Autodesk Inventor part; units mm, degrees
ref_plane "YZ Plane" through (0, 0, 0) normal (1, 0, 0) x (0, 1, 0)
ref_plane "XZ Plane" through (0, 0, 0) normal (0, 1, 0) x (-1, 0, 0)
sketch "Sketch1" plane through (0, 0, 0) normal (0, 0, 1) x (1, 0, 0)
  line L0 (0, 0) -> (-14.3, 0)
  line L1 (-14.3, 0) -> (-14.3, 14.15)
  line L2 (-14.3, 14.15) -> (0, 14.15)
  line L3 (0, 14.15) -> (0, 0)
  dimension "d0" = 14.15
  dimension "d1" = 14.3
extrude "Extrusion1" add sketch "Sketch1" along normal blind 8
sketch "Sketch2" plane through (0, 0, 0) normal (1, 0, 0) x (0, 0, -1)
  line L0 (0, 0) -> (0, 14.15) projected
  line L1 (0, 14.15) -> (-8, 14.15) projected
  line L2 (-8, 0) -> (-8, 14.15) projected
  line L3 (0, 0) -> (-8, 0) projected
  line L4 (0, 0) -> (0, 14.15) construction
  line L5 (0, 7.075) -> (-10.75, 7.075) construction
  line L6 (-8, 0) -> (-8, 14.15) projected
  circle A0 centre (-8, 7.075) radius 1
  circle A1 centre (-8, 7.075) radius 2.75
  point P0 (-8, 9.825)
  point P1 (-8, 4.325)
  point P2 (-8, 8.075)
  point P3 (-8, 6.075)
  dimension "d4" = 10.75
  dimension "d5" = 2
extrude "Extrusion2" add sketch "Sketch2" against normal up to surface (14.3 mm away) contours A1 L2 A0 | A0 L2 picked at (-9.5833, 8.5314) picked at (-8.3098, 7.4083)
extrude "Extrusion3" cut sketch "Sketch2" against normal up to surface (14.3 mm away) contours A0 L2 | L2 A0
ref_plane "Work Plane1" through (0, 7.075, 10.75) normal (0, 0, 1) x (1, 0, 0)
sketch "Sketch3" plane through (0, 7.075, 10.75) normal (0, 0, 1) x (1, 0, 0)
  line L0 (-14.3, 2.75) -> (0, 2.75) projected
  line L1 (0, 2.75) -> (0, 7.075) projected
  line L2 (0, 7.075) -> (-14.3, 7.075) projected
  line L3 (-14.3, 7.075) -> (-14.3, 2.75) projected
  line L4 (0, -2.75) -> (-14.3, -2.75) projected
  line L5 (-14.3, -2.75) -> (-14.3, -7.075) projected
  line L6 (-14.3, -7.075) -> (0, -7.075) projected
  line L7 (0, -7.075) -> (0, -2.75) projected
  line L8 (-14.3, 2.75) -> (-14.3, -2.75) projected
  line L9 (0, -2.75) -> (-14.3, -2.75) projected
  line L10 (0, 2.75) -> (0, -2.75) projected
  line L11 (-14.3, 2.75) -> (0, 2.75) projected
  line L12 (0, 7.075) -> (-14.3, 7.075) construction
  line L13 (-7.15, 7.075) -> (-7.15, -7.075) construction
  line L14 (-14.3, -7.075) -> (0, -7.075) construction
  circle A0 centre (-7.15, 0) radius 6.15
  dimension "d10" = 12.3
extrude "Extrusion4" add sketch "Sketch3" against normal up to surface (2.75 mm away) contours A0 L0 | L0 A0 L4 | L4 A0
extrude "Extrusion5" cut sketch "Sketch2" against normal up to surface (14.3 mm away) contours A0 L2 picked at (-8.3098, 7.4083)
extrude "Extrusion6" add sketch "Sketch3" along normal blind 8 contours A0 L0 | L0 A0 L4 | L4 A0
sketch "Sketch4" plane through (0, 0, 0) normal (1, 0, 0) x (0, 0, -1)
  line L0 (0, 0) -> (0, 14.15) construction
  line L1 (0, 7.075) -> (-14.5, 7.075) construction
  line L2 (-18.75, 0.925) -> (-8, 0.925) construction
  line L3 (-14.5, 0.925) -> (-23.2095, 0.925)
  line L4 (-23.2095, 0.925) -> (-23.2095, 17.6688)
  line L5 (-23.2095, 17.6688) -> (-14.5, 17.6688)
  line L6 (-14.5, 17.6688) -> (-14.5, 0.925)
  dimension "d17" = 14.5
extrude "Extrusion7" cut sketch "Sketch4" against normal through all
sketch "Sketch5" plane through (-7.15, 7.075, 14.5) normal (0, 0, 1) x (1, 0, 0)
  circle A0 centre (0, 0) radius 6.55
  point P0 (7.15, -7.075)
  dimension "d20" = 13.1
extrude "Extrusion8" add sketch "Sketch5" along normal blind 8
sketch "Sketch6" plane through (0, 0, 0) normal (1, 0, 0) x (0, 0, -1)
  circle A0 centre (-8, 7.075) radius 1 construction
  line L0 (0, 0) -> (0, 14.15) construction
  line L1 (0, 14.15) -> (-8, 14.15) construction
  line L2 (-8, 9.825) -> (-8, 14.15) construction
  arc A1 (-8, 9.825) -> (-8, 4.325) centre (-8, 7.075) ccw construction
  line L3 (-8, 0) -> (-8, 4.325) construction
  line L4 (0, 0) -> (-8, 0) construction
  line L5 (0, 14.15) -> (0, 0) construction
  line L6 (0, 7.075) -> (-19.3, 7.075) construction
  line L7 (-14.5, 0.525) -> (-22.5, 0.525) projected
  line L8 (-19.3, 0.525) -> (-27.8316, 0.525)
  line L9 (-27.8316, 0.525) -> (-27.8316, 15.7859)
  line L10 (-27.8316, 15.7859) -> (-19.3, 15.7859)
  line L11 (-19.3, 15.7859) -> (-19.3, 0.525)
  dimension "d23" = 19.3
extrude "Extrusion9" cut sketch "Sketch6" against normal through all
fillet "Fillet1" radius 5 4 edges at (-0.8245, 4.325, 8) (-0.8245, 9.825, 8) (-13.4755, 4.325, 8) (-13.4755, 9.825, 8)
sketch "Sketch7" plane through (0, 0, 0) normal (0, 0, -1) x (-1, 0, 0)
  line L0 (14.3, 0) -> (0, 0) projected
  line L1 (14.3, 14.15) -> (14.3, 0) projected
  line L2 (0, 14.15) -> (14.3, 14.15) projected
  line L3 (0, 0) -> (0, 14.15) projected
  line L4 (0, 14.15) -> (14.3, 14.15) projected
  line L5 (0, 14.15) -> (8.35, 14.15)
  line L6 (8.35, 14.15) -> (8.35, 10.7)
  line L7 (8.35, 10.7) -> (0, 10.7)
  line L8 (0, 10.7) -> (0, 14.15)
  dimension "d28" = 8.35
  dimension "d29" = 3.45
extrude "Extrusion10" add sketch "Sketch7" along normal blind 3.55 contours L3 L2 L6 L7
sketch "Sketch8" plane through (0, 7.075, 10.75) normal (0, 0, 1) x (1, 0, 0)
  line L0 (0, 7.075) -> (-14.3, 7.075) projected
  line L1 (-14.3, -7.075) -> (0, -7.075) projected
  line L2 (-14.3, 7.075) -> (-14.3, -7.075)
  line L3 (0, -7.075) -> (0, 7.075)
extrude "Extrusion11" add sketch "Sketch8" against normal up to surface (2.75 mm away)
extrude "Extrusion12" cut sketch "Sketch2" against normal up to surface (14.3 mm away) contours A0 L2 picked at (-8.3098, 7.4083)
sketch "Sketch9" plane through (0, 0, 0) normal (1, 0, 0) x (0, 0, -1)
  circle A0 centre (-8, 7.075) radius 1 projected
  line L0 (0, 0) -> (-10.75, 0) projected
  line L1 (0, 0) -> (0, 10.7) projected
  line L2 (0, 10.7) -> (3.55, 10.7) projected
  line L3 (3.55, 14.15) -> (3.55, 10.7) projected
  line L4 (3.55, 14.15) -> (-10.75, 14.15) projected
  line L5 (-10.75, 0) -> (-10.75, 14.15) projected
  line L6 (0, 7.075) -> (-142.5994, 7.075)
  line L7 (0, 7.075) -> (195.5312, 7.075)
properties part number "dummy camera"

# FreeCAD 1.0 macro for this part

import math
import FreeCAD as App
import Part
import Sketcher
from FreeCAD import Vector


def edges_at(feature, points):
    """Names of the edges that pass closest to the given points."""
    edges = feature.Shape.Edges
    near = lambda p: min(range(len(edges)), key=lambda i: edges[i].distToShape(Part.Vertex(*p))[0])
    return sorted({f"Edge{near(p) + 1}" for p in points})

doc = App.newDocument("Part")
body = doc.addObject("PartDesign::Body", "Body")

# Sketch on XY plane
sketch1 = doc.addObject("Sketcher::SketchObject", "Sketch")
body.addObject(sketch1)
sketch1.AttachmentSupport = (doc.XY_Plane, [""])
sketch1.MapMode = "FlatFace"
sketch1.addGeometry(Part.LineSegment(Vector(-14, 0, 0), Vector(0, 0, 0)), False)
sketch1.addGeometry(Part.LineSegment(Vector(0, 0, 0), Vector(0, 14, 0)), False)
sketch1.addGeometry(Part.LineSegment(Vector(0, 14, 0), Vector(-14, 14, 0)), False)
sketch1.addGeometry(Part.LineSegment(Vector(-14, 14, 0), Vector(-14, 0, 0)), False)
sketch1.addConstraint(Sketcher.Constraint("Coincident", 0, 2, 1, 1))
sketch1.addConstraint(Sketcher.Constraint("Coincident", 1, 2, 2, 1))
sketch1.addConstraint(Sketcher.Constraint("Coincident", 2, 2, 3, 1))
sketch1.addConstraint(Sketcher.Constraint("Coincident", 3, 2, 0, 1))
sketch1.addConstraint(Sketcher.Constraint("Horizontal", 0))
sketch1.addConstraint(Sketcher.Constraint("Vertical", 1))
sketch1.addConstraint(Sketcher.Constraint("Horizontal", 2))
sketch1.addConstraint(Sketcher.Constraint("Vertical", 3))
sketch1.addConstraint(Sketcher.Constraint("Coincident", 0, 2, -1, 1))
sketch1.addConstraint(Sketcher.Constraint("DistanceX", 0, 1, 0, 2, 14.3))
sketch1.addConstraint(Sketcher.Constraint("DistanceY", 1, 1, 1, 2, 14.15))
pad1 = doc.addObject("PartDesign::Pad", "Pad")
body.addObject(pad1)
pad1.Profile = sketch1
pad1.Length = 8

# Sketch on YZ plane
sketch2 = doc.addObject("Sketcher::SketchObject", "Sketch001")
body.addObject(sketch2)
sketch2.AttachmentSupport = (doc.YZ_Plane, [""])
sketch2.MapMode = "FlatFace"
sketch2.addGeometry(Part.ArcOfCircle(Part.Circle(Vector(7.1, 8, 0), Vector(0, 0, 1), 2.8), math.radians(0), math.radians(180)), False)
sketch2.addGeometry(Part.LineSegment(Vector(4.3, 8, 0), Vector(9.8, 8, 0)), False)
sketch2.addConstraint(Sketcher.Constraint("Coincident", 0, 1, 1, 2))
sketch2.addConstraint(Sketcher.Constraint("Coincident", 1, 1, 0, 2))
sketch2.addConstraint(Sketcher.Constraint("Horizontal", 1))
sketch2.addConstraint(Sketcher.Constraint("Radius", 0, 2.75))
sketch2.addConstraint(Sketcher.Constraint("DistanceY", -1, 1, 0, 3, 8.0))
sketch2.addConstraint(Sketcher.Constraint("DistanceY", -1, 1, 0, 1, 8.0))
sketch2.addConstraint(Sketcher.Constraint("DistanceX", -1, 1, 0, 3, 7.075))
pad2 = doc.addObject("PartDesign::Pad", "Pad001")
body.addObject(pad2)
pad2.Profile = sketch2
pad2.Length = 14.3
pad2.Reversed = True

# Sketch on YZ plane
sketch3 = doc.addObject("Sketcher::SketchObject", "Sketch002")
body.addObject(sketch3)
sketch3.AttachmentSupport = (doc.YZ_Plane, [""])
sketch3.MapMode = "FlatFace"
sketch3.addGeometry(Part.Circle(Vector(7.1, 8, 0), Vector(0, 0, 1), 1), False)
sketch3.addConstraint(Sketcher.Constraint("Diameter", 0, 2.0))
sketch3.addConstraint(Sketcher.Constraint("DistanceY", -1, 1, 0, 3, 8.0))
sketch3.addConstraint(Sketcher.Constraint("DistanceX", -1, 1, 0, 3, 7.075))
pocket1 = doc.addObject("PartDesign::Pocket", "Pocket")
body.addObject(pocket1)
pocket1.Profile = sketch3
pocket1.Length = 14.3

# Sketch on XY plane
sketch4 = doc.addObject("Sketcher::SketchObject", "Sketch003")
body.addObject(sketch4)
sketch4.AttachmentSupport = (doc.XY_Plane, [""])
sketch4.MapMode = "FlatFace"
sketch4.AttachmentOffset = App.Placement(Vector(0, 0, 10.75), App.Rotation())
sketch4.addGeometry(Part.Circle(Vector(-7, 7, 0), Vector(0, 0, 1), 6), False)
sketch4.addConstraint(Sketcher.Constraint("Diameter", 0, 12.3))
sketch4.addConstraint(Sketcher.Constraint("DistanceX", 0, 3, -1, 1, 7.15))
sketch4.addConstraint(Sketcher.Constraint("DistanceY", -1, 1, 0, 3, 7.075))
pad3 = doc.addObject("PartDesign::Pad", "Pad002")
body.addObject(pad3)
pad3.Profile = sketch4
pad3.Length = 2.75
pad3.Reversed = True

# Sketch on YZ plane
sketch5 = doc.addObject("Sketcher::SketchObject", "Sketch004")
body.addObject(sketch5)
sketch5.AttachmentSupport = (doc.YZ_Plane, [""])
sketch5.MapMode = "FlatFace"
sketch5.addGeometry(Part.ArcOfCircle(Part.Circle(Vector(7.1, 8, 0), Vector(0, 0, 1), 1), math.radians(0), math.radians(180)), False)
sketch5.addGeometry(Part.LineSegment(Vector(6.1, 8, 0), Vector(8.1, 8, 0)), False)
sketch5.addConstraint(Sketcher.Constraint("Coincident", 0, 1, 1, 2))
sketch5.addConstraint(Sketcher.Constraint("Coincident", 1, 1, 0, 2))
sketch5.addConstraint(Sketcher.Constraint("Horizontal", 1))
sketch5.addConstraint(Sketcher.Constraint("Radius", 0, 1.0))
sketch5.addConstraint(Sketcher.Constraint("DistanceY", -1, 1, 0, 3, 8.0))
sketch5.addConstraint(Sketcher.Constraint("DistanceY", -1, 1, 0, 1, 8.0))
sketch5.addConstraint(Sketcher.Constraint("DistanceX", -1, 1, 0, 3, 7.075))
pocket2 = doc.addObject("PartDesign::Pocket", "Pocket001")
body.addObject(pocket2)
pocket2.Profile = sketch5
pocket2.Length = 14.3

# Sketch on XY plane
sketch6 = doc.addObject("Sketcher::SketchObject", "Sketch005")
body.addObject(sketch6)
sketch6.AttachmentSupport = (doc.XY_Plane, [""])
sketch6.MapMode = "FlatFace"
sketch6.AttachmentOffset = App.Placement(Vector(0, 0, 10.75), App.Rotation())
sketch6.addGeometry(Part.Circle(Vector(-7, 7, 0), Vector(0, 0, 1), 6), False)
sketch6.addConstraint(Sketcher.Constraint("Diameter", 0, 12.3))
sketch6.addConstraint(Sketcher.Constraint("DistanceX", 0, 3, -1, 1, 7.15))
sketch6.addConstraint(Sketcher.Constraint("DistanceY", -1, 1, 0, 3, 7.075))
pad4 = doc.addObject("PartDesign::Pad", "Pad003")
body.addObject(pad4)
pad4.Profile = sketch6
pad4.Length = 8

# Sketch on YZ plane
sketch7 = doc.addObject("Sketcher::SketchObject", "Sketch006")
body.addObject(sketch7)
sketch7.AttachmentSupport = (doc.YZ_Plane, [""])
sketch7.MapMode = "FlatFace"
sketch7.addGeometry(Part.LineSegment(Vector(1, 23, 0), Vector(1, 14, 0)), False)
sketch7.addGeometry(Part.LineSegment(Vector(1, 14, 0), Vector(18, 14, 0)), False)
sketch7.addGeometry(Part.LineSegment(Vector(18, 14, 0), Vector(18, 23, 0)), False)
sketch7.addGeometry(Part.LineSegment(Vector(18, 23, 0), Vector(1, 23, 0)), False)
sketch7.addConstraint(Sketcher.Constraint("Coincident", 0, 2, 1, 1))
sketch7.addConstraint(Sketcher.Constraint("Coincident", 1, 2, 2, 1))
sketch7.addConstraint(Sketcher.Constraint("Coincident", 2, 2, 3, 1))
sketch7.addConstraint(Sketcher.Constraint("Coincident", 3, 2, 0, 1))
sketch7.addConstraint(Sketcher.Constraint("Vertical", 0))
sketch7.addConstraint(Sketcher.Constraint("Horizontal", 1))
sketch7.addConstraint(Sketcher.Constraint("Vertical", 2))
sketch7.addConstraint(Sketcher.Constraint("Horizontal", 3))
sketch7.addConstraint(Sketcher.Constraint("DistanceY", -1, 1, 0, 2, 14.5))
sketch7.addConstraint(Sketcher.Constraint("DistanceX", 1, 1, 1, 2, 16.7438))
sketch7.addConstraint(Sketcher.Constraint("DistanceY", 0, 2, 0, 1, 8.7095))
sketch7.addConstraint(Sketcher.Constraint("DistanceX", -1, 1, 0, 2, 0.925))
pocket3 = doc.addObject("PartDesign::Pocket", "Pocket002")
body.addObject(pocket3)
pocket3.Profile = sketch7
pocket3.Type = "ThroughAll"

# Sketch on XY plane
sketch8 = doc.addObject("Sketcher::SketchObject", "Sketch007")
body.addObject(sketch8)
sketch8.AttachmentSupport = (doc.XY_Plane, [""])
sketch8.MapMode = "FlatFace"
sketch8.AttachmentOffset = App.Placement(Vector(0, 0, 14.5), App.Rotation())
sketch8.addGeometry(Part.Circle(Vector(-7, 7, 0), Vector(0, 0, 1), 7), False)
sketch8.addConstraint(Sketcher.Constraint("Diameter", 0, 13.1))
sketch8.addConstraint(Sketcher.Constraint("DistanceX", 0, 3, -1, 1, 7.15))
sketch8.addConstraint(Sketcher.Constraint("DistanceY", -1, 1, 0, 3, 7.075))
pad5 = doc.addObject("PartDesign::Pad", "Pad004")
body.addObject(pad5)
pad5.Profile = sketch8
pad5.Length = 8

# Sketch on YZ plane
sketch9 = doc.addObject("Sketcher::SketchObject", "Sketch008")
body.addObject(sketch9)
sketch9.AttachmentSupport = (doc.YZ_Plane, [""])
sketch9.MapMode = "FlatFace"
sketch9.addGeometry(Part.LineSegment(Vector(1, 28, 0), Vector(1, 19, 0)), False)
sketch9.addGeometry(Part.LineSegment(Vector(1, 19, 0), Vector(16, 19, 0)), False)
sketch9.addGeometry(Part.LineSegment(Vector(16, 19, 0), Vector(16, 28, 0)), False)
sketch9.addGeometry(Part.LineSegment(Vector(16, 28, 0), Vector(1, 28, 0)), False)
sketch9.addConstraint(Sketcher.Constraint("Coincident", 0, 2, 1, 1))
sketch9.addConstraint(Sketcher.Constraint("Coincident", 1, 2, 2, 1))
sketch9.addConstraint(Sketcher.Constraint("Coincident", 2, 2, 3, 1))
sketch9.addConstraint(Sketcher.Constraint("Coincident", 3, 2, 0, 1))
sketch9.addConstraint(Sketcher.Constraint("Vertical", 0))
sketch9.addConstraint(Sketcher.Constraint("Horizontal", 1))
sketch9.addConstraint(Sketcher.Constraint("Vertical", 2))
sketch9.addConstraint(Sketcher.Constraint("Horizontal", 3))
sketch9.addConstraint(Sketcher.Constraint("DistanceY", -1, 1, 0, 2, 19.3))
sketch9.addConstraint(Sketcher.Constraint("DistanceX", 1, 1, 1, 2, 15.261))
sketch9.addConstraint(Sketcher.Constraint("DistanceY", 0, 2, 0, 1, 8.5316))
sketch9.addConstraint(Sketcher.Constraint("DistanceX", -1, 1, 0, 2, 0.525))
pocket4 = doc.addObject("PartDesign::Pocket", "Pocket003")
body.addObject(pocket4)
pocket4.Profile = sketch9
pocket4.Type = "ThroughAll"
doc.recompute()

fillet = doc.addObject("PartDesign::Fillet", "Fillet")
body.addObject(fillet)
fillet.Base = (pocket4, edges_at(pocket4, [
    (-0.825, 4.325, 8),
    (-0.825, 9.825, 8),
    (-13.476, 4.325, 8),
    (-13.476, 9.825, 8),
]))
fillet.Radius = 5

# Sketch on XY plane
sketch10 = doc.addObject("Sketcher::SketchObject", "Sketch009")
body.addObject(sketch10)
sketch10.AttachmentSupport = (doc.XY_Plane, [""])
sketch10.MapMode = "FlatFace"
sketch10.addGeometry(Part.LineSegment(Vector(0, 14.2, 0), Vector(0, 10.7, 0)), False)
sketch10.addGeometry(Part.LineSegment(Vector(0, 10.7, 0), Vector(-8.3, 10.7, 0)), False)
sketch10.addGeometry(Part.LineSegment(Vector(-8.3, 10.7, 0), Vector(-8.3, 14.2, 0)), False)
sketch10.addGeometry(Part.LineSegment(Vector(-8.3, 14.2, 0), Vector(0, 14.2, 0)), False)
sketch10.addConstraint(Sketcher.Constraint("Coincident", 0, 2, 1, 1))
sketch10.addConstraint(Sketcher.Constraint("Coincident", 1, 2, 2, 1))
sketch10.addConstraint(Sketcher.Constraint("Coincident", 2, 2, 3, 1))
sketch10.addConstraint(Sketcher.Constraint("Coincident", 3, 2, 0, 1))
sketch10.addConstraint(Sketcher.Constraint("Vertical", 0))
sketch10.addConstraint(Sketcher.Constraint("Horizontal", 1))
sketch10.addConstraint(Sketcher.Constraint("Vertical", 2))
sketch10.addConstraint(Sketcher.Constraint("Horizontal", 3))
sketch10.addConstraint(Sketcher.Constraint("PointOnObject", 0, 2, -2))
sketch10.addConstraint(Sketcher.Constraint("DistanceX", 1, 2, 1, 1, 8.35))
sketch10.addConstraint(Sketcher.Constraint("DistanceY", 0, 2, 0, 1, 3.45))
sketch10.addConstraint(Sketcher.Constraint("DistanceY", -1, 1, 0, 2, 10.7))
pad6 = doc.addObject("PartDesign::Pad", "Pad005")
body.addObject(pad6)
pad6.Profile = sketch10
pad6.Length = 3.55
pad6.Reversed = True

# Sketch on XY plane
sketch11 = doc.addObject("Sketcher::SketchObject", "Sketch010")
body.addObject(sketch11)
sketch11.AttachmentSupport = (doc.XY_Plane, [""])
sketch11.MapMode = "FlatFace"
sketch11.AttachmentOffset = App.Placement(Vector(0, 0, 10.75), App.Rotation())
sketch11.addGeometry(Part.LineSegment(Vector(0, 0, 0), Vector(0, 14, 0)), False)
sketch11.addGeometry(Part.LineSegment(Vector(0, 14, 0), Vector(-14, 14, 0)), False)
sketch11.addGeometry(Part.LineSegment(Vector(-14, 14, 0), Vector(-14, 0, 0)), False)
sketch11.addGeometry(Part.LineSegment(Vector(-14, 0, 0), Vector(0, 0, 0)), False)
sketch11.addConstraint(Sketcher.Constraint("Coincident", 0, 2, 1, 1))
sketch11.addConstraint(Sketcher.Constraint("Coincident", 1, 2, 2, 1))
sketch11.addConstraint(Sketcher.Constraint("Coincident", 2, 2, 3, 1))
sketch11.addConstraint(Sketcher.Constraint("Coincident", 3, 2, 0, 1))
sketch11.addConstraint(Sketcher.Constraint("Vertical", 0))
sketch11.addConstraint(Sketcher.Constraint("Horizontal", 1))
sketch11.addConstraint(Sketcher.Constraint("Vertical", 2))
sketch11.addConstraint(Sketcher.Constraint("Horizontal", 3))
sketch11.addConstraint(Sketcher.Constraint("Coincident", 3, 2, -1, 1))
sketch11.addConstraint(Sketcher.Constraint("DistanceX", 1, 2, 1, 1, 14.3))
sketch11.addConstraint(Sketcher.Constraint("DistanceY", 0, 1, 0, 2, 14.15))
pad7 = doc.addObject("PartDesign::Pad", "Pad006")
body.addObject(pad7)
pad7.Profile = sketch11
pad7.Length = 2.75
pad7.Reversed = True

# Sketch on YZ plane
sketch12 = doc.addObject("Sketcher::SketchObject", "Sketch011")
body.addObject(sketch12)
sketch12.AttachmentSupport = (doc.YZ_Plane, [""])
sketch12.MapMode = "FlatFace"
sketch12.addGeometry(Part.ArcOfCircle(Part.Circle(Vector(7.1, 8, 0), Vector(0, 0, 1), 1), math.radians(0), math.radians(180)), False)
sketch12.addGeometry(Part.LineSegment(Vector(6.1, 8, 0), Vector(8.1, 8, 0)), False)
sketch12.addConstraint(Sketcher.Constraint("Coincident", 0, 1, 1, 2))
sketch12.addConstraint(Sketcher.Constraint("Coincident", 1, 1, 0, 2))
sketch12.addConstraint(Sketcher.Constraint("Horizontal", 1))
sketch12.addConstraint(Sketcher.Constraint("Radius", 0, 1.0))
sketch12.addConstraint(Sketcher.Constraint("DistanceY", -1, 1, 0, 3, 8.0))
sketch12.addConstraint(Sketcher.Constraint("DistanceY", -1, 1, 0, 1, 8.0))
sketch12.addConstraint(Sketcher.Constraint("DistanceX", -1, 1, 0, 3, 7.075))
pocket5 = doc.addObject("PartDesign::Pocket", "Pocket004")
body.addObject(pocket5)
pocket5.Profile = sketch12
pocket5.Length = 14.3

doc.recompute()
